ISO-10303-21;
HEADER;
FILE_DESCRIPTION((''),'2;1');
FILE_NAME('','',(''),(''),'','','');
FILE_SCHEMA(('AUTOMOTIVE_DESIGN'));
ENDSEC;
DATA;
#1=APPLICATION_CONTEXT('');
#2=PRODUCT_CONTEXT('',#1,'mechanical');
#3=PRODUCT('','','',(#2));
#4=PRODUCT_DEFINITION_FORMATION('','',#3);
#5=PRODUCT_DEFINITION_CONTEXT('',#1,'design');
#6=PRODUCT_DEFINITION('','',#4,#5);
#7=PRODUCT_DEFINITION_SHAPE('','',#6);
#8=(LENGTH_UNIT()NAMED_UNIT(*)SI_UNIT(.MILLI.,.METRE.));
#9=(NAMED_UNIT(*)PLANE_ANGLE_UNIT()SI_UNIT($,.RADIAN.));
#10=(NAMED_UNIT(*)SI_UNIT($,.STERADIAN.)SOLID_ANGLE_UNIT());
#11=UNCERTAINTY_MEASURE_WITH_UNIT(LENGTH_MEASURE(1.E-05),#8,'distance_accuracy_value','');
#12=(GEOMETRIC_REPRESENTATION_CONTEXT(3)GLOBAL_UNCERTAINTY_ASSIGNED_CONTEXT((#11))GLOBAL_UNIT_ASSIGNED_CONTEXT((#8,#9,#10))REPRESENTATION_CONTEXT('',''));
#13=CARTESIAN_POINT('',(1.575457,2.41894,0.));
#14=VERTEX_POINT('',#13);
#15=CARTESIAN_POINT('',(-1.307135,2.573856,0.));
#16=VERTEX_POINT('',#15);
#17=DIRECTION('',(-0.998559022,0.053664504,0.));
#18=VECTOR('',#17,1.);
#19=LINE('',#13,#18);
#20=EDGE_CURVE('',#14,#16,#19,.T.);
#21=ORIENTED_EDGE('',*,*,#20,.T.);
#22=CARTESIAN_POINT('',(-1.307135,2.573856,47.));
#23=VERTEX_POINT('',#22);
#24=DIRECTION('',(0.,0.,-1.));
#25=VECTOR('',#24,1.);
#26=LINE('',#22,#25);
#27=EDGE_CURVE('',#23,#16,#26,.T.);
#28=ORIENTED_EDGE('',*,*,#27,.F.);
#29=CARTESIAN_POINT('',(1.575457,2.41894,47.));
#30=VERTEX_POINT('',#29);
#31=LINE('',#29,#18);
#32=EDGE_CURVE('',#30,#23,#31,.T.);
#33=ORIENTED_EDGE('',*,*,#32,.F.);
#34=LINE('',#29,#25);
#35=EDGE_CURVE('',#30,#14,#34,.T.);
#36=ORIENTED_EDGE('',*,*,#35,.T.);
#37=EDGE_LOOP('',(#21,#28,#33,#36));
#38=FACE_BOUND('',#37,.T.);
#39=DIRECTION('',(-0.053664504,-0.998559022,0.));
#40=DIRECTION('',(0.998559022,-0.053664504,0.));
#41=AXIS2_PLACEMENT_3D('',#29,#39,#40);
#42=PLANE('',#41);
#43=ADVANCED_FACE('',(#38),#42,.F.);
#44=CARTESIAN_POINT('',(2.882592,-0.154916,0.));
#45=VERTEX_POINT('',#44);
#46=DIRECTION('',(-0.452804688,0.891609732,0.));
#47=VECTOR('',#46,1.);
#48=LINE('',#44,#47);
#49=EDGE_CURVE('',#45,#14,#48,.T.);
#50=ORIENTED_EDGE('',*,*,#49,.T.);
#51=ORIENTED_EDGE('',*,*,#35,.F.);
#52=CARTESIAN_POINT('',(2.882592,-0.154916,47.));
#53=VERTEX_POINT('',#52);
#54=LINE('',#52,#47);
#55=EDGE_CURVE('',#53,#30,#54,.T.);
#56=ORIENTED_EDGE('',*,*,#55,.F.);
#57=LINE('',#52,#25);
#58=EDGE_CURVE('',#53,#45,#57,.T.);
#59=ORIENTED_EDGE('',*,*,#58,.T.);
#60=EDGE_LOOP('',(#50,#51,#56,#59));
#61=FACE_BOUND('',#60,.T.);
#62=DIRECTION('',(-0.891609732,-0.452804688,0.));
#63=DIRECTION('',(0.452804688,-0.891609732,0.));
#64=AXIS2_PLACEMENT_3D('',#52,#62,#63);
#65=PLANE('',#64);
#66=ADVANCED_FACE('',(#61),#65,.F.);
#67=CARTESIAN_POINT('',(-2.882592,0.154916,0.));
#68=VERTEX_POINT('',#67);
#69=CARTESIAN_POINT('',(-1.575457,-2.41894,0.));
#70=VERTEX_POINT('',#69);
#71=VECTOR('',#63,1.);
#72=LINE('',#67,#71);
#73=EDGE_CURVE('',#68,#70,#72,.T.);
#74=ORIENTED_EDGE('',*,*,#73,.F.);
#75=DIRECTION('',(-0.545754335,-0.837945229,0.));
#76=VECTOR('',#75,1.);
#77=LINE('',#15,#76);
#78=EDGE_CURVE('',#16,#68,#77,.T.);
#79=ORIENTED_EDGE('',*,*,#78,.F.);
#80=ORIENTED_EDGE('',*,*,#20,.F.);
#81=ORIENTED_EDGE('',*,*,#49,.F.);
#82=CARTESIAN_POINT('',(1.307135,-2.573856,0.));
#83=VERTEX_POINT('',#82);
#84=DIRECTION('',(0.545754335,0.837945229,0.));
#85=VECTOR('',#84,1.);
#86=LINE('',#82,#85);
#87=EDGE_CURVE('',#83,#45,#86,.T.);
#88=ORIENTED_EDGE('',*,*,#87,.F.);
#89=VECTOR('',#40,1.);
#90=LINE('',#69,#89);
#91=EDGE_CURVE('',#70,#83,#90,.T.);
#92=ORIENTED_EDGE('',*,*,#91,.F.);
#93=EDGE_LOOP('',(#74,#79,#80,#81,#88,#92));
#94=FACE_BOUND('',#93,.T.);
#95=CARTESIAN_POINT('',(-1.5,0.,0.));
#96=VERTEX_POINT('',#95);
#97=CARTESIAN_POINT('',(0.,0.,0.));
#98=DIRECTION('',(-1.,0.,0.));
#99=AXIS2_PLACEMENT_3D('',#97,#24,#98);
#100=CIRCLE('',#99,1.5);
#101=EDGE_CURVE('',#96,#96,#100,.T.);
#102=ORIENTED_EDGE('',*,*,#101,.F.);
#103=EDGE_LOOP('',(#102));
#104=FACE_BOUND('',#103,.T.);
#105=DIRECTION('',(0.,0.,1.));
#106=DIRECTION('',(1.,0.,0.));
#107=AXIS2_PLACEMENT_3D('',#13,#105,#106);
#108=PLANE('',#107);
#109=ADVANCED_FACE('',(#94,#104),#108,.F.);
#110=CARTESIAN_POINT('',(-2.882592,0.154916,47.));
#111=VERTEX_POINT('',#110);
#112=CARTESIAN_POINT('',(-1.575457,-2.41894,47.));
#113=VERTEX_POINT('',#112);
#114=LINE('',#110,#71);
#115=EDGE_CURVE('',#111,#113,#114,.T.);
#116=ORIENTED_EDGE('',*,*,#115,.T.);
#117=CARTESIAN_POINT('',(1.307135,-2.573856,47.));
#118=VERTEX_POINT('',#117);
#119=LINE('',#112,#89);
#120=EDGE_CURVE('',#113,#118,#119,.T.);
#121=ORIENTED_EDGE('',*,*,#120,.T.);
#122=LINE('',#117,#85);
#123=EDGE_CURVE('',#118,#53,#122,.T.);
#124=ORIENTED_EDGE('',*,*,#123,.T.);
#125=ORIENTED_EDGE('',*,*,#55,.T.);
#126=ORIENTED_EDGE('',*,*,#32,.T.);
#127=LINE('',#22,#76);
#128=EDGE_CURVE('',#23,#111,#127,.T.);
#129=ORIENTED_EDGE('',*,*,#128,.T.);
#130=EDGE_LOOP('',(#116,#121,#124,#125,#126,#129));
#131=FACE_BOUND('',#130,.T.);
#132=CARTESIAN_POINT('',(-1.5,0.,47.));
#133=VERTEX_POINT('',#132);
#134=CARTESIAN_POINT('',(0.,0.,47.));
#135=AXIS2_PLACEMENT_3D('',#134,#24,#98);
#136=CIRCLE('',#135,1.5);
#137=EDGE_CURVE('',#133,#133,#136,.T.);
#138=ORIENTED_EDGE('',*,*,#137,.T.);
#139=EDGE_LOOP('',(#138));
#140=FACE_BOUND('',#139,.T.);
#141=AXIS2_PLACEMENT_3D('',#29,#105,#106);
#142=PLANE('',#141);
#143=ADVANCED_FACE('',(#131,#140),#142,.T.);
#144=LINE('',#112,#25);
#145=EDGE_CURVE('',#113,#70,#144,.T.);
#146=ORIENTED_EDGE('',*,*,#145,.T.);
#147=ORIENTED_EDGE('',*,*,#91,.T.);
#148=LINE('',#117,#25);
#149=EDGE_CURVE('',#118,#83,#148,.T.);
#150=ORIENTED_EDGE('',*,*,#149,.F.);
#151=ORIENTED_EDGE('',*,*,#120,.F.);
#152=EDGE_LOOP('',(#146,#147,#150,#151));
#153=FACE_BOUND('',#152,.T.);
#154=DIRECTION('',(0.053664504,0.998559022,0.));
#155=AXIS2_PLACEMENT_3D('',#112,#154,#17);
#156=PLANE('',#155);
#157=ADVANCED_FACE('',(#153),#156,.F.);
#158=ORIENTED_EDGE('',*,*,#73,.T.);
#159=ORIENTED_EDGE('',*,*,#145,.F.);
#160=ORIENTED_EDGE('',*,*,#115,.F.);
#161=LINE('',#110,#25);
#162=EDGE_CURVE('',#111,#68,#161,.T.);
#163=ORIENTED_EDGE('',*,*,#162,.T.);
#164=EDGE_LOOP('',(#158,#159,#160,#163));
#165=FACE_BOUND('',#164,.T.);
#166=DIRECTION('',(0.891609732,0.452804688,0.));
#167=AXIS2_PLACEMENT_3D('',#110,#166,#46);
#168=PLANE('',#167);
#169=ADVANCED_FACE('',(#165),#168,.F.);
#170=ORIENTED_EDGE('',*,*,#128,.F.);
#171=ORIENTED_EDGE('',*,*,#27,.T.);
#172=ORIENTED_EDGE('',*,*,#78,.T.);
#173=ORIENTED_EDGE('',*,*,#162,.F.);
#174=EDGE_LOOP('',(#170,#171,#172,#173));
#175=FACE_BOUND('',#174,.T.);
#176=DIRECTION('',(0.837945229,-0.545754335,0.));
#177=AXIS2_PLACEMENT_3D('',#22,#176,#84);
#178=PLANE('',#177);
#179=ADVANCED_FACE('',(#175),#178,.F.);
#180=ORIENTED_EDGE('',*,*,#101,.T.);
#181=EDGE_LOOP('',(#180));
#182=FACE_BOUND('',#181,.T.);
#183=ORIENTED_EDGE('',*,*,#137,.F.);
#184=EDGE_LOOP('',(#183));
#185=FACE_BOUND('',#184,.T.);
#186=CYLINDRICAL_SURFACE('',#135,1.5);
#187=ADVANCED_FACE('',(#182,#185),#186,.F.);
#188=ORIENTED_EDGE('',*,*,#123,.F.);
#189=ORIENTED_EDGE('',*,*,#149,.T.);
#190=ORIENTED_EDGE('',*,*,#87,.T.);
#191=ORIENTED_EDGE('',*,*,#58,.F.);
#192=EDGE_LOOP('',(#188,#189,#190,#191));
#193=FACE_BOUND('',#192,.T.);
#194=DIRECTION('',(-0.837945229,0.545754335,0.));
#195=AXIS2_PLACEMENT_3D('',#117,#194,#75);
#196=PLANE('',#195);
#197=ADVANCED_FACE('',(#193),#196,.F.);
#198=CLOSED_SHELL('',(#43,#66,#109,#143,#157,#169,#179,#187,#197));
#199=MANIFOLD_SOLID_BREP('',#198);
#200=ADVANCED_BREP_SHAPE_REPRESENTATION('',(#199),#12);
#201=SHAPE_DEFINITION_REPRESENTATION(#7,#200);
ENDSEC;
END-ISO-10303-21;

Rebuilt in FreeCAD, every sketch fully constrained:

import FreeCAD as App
import Part
import Sketcher
from FreeCAD import Vector


def add_polygon(sketch, points):
    """Adds a closed chain of lines whose ends are joined by coincident constraints."""
    first, n = sketch.GeometryCount, len(points)
    for a, b in zip(points, points[1:] + points[:1]):
        sketch.addGeometry(Part.LineSegment(App.Vector(*a, 0), App.Vector(*b, 0)), False)
    for i in range(n):
        sketch.addConstraint(Sketcher.Constraint("Coincident", first + i, 2, first + (i + 1) % n, 1))

doc = App.newDocument("Part")
body = doc.addObject("PartDesign::Body", "Body")

# Sketch on XY plane
sketch1 = doc.addObject("Sketcher::SketchObject", "Sketch")
body.addObject(sketch1)
sketch1.AttachmentSupport = (doc.XY_Plane, [""])
sketch1.MapMode = "FlatFace"
add_polygon(sketch1, [(1.6, 2.4), (-1.3, 2.6), (-2.9, 0.2), (-1.6, -2.4), (1.3, -2.6), (2.9, -0.2)])  # lines 0-5
sketch1.addConstraint([
    Sketcher.Constraint("Symmetric", 0, 2, 3, 2, -1, 1),
    Sketcher.Constraint("Symmetric", 1, 2, 4, 2, -1, 1),
    Sketcher.Constraint("Symmetric", 2, 2, 5, 2, -1, 1),
    Sketcher.Constraint("Equal", 0, 1),
    Sketcher.Constraint("Equal", 1, 2),
    Sketcher.Constraint("Distance", 0, 2.886751),
    Sketcher.Constraint("DistanceX", 1, 2, -1, 1, 2.882592),
    Sketcher.Constraint("DistanceY", 2, 2, -1, 1, 2.41894),
    Sketcher.Constraint("DistanceY", 1, 2, 0, 2, 2.41894),
])
pad1 = doc.addObject("PartDesign::Pad", "Pad")
body.addObject(pad1)
pad1.Profile = sketch1
pad1.Length = 47

# Sketch on XY plane
sketch2 = doc.addObject("Sketcher::SketchObject", "Sketch001")
body.addObject(sketch2)
sketch2.AttachmentSupport = (doc.XY_Plane, [""])
sketch2.MapMode = "FlatFace"
sketch2.addGeometry(Part.Circle(Vector(0, 0, 0), Vector(0, 0, 1), 1.5), False)
sketch2.addConstraint([
    Sketcher.Constraint("Coincident", 0, 3, -1, 1),
    Sketcher.Constraint("Diameter", 0, 3.0),
])
pocket1 = doc.addObject("PartDesign::Pocket", "Pocket")
body.addObject(pocket1)
pocket1.Profile = sketch2
pocket1.Type = "ThroughAll"
pocket1.Reversed = True

doc.recompute()
